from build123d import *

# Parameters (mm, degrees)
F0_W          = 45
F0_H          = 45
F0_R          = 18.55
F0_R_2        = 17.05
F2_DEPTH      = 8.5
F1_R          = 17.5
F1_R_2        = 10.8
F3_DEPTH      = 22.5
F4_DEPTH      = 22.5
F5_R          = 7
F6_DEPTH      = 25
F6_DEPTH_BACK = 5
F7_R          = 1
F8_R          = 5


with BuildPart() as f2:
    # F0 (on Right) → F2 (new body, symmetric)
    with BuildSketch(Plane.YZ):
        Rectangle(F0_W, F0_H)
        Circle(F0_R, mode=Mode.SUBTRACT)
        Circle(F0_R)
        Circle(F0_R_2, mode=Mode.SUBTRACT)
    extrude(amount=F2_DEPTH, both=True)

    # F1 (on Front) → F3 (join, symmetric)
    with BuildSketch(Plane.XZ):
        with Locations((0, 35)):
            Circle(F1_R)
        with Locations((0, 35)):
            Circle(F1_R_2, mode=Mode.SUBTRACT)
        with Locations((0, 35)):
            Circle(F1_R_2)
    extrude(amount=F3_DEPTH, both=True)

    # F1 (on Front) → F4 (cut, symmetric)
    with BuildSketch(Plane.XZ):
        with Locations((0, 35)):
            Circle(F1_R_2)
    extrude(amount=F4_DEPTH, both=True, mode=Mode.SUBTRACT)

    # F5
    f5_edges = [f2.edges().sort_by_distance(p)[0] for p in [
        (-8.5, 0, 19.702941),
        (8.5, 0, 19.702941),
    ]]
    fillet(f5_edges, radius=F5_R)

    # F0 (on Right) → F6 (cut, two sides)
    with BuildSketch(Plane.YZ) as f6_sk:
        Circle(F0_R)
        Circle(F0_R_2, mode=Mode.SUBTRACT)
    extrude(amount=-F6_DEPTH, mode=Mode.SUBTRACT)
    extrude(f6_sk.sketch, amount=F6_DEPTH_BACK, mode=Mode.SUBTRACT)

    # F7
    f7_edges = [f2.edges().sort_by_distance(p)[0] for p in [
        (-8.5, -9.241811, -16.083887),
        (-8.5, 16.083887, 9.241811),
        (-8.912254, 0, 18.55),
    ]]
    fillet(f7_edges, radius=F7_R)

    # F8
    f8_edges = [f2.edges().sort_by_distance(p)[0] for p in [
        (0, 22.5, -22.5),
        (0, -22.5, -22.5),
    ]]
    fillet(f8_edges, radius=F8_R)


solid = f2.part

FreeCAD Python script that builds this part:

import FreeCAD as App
import Part
import Sketcher

V = App.Vector


def edges_at(feature, points):
    """Names of the edges that pass closest to the given points."""
    edges = feature.Shape.Edges
    near = lambda p: min(range(len(edges)), key=lambda i: edges[i].distToShape(Part.Vertex(*p))[0])
    return sorted({f"Edge{near(p) + 1}" for p in points})

doc = App.newDocument("Part")
body = doc.addObject("PartDesign::Body", "Body")

sketch1 = body.newObject("Sketcher::SketchObject", "Sketch")
sketch1.AttachmentSupport = (doc.getObject("YZ_Plane"), [""])
sketch1.MapMode = "FlatFace"
sketch1.addGeometry(Part.LineSegment(V(-22, 22, 0), V(-22, -22, 0)), False)
sketch1.addGeometry(Part.LineSegment(V(-22, -22, 0), V(22, -22, 0)), False)
sketch1.addGeometry(Part.LineSegment(V(22, -22, 0), V(22, 22, 0)), False)
sketch1.addGeometry(Part.LineSegment(V(22, 22, 0), V(-22, 22, 0)), False)
sketch1.addGeometry(Part.Circle(V(0, 0, 0), V(0, 0, 1), 17), False)
sketch1.addConstraint(Sketcher.Constraint("Coincident", 0, 2, 1, 1))
sketch1.addConstraint(Sketcher.Constraint("Coincident", 1, 2, 2, 1))
sketch1.addConstraint(Sketcher.Constraint("Coincident", 2, 2, 3, 1))
sketch1.addConstraint(Sketcher.Constraint("Coincident", 3, 2, 0, 1))
sketch1.addConstraint(Sketcher.Constraint("Vertical", 0))
sketch1.addConstraint(Sketcher.Constraint("Horizontal", 1))
sketch1.addConstraint(Sketcher.Constraint("Vertical", 2))
sketch1.addConstraint(Sketcher.Constraint("Horizontal", 3))
sketch1.addConstraint(Sketcher.Constraint("Coincident", 4, 3, -1, 1))
sketch1.addConstraint(Sketcher.Constraint("Symmetric", 0, 2, 2, 2, -1, 1))
sketch1.addConstraint(Sketcher.Constraint("Equal", 3, 0))
sketch1.addConstraint(Sketcher.Constraint("Diameter", 4, 34.1))
sketch1.addConstraint(Sketcher.Constraint("DistanceX", 1, 1, 1, 2, 45.0))
pad1 = body.newObject("PartDesign::Pad", "Pad")
pad1.Profile = sketch1
pad1.Length = 17
pad1.Midplane = True

sketch2 = body.newObject("Sketcher::SketchObject", "Sketch001")
sketch2.AttachmentSupport = (doc.getObject("XZ_Plane"), [""])
sketch2.MapMode = "FlatFace"
sketch2.addGeometry(Part.Circle(V(0, 35, 0), V(0, 0, 1), 18), False)
sketch2.addConstraint(Sketcher.Constraint("PointOnObject", 0, 3, -2))
sketch2.addConstraint(Sketcher.Constraint("Diameter", 0, 35.0))
sketch2.addConstraint(Sketcher.Constraint("DistanceY", -1, 1, 0, 3, 35.0))
pad2 = body.newObject("PartDesign::Pad", "Pad001")
pad2.Profile = sketch2
pad2.Length = 45
pad2.Midplane = True

sketch3 = body.newObject("Sketcher::SketchObject", "Sketch002")
sketch3.AttachmentSupport = (doc.getObject("XZ_Plane"), [""])
sketch3.MapMode = "FlatFace"
sketch3.addGeometry(Part.Circle(V(0, 35, 0), V(0, 0, 1), 11), False)
sketch3.addConstraint(Sketcher.Constraint("PointOnObject", 0, 3, -2))
sketch3.addConstraint(Sketcher.Constraint("Diameter", 0, 21.6))
sketch3.addConstraint(Sketcher.Constraint("DistanceY", -1, 1, 0, 3, 35.0))
pocket1 = body.newObject("PartDesign::Pocket", "Pocket")
pocket1.Profile = sketch3
pocket1.Length = 45
pocket1.Midplane = True
doc.recompute()

fillet = body.newObject("PartDesign::Fillet", "Fillet")
fillet.Base = (pocket1, edges_at(pocket1, [(-8.5, 0, 19.703), (8.5, 0, 19.703)]))
fillet.Radius = 7

sketch4 = body.newObject("Sketcher::SketchObject", "Sketch003")
sketch4.AttachmentSupport = (doc.getObject("YZ_Plane"), [""])
sketch4.MapMode = "FlatFace"
sketch4.addGeometry(Part.Circle(V(0, 0, 0), V(0, 0, 1), 19), False)
sketch4.addGeometry(Part.Circle(V(0, 0, 0), V(0, 0, 1), 17), False)
sketch4.addConstraint(Sketcher.Constraint("Coincident", 0, 3, -1, 1))
sketch4.addConstraint(Sketcher.Constraint("Coincident", 1, 3, -1, 1))
sketch4.addConstraint(Sketcher.Constraint("Diameter", 0, 37.1))
sketch4.addConstraint(Sketcher.Constraint("Diameter", 1, 34.1))
pocket2 = body.newObject("PartDesign::Pocket", "Pocket001")
pocket2.Profile = sketch4
pocket2.Type = "TwoLengths"
pocket2.Length = 25
pocket2.Length2 = 5
doc.recompute()

fillet2 = body.newObject("PartDesign::Fillet", "Fillet001")
fillet2.Base = (pocket2, edges_at(pocket2, [(-8.5, -9.242, -16.084), (-8.5, 16.084, 9.242), (-8.912, 0, 18.55)]))
fillet2.Radius = 1
doc.recompute()

fillet3 = body.newObject("PartDesign::Fillet", "Fillet002")
fillet3.Base = (fillet2, edges_at(fillet2, [(0, 22.5, -22.5), (0, -22.5, -22.5)]))
fillet3.Radius = 5

doc.recompute()
